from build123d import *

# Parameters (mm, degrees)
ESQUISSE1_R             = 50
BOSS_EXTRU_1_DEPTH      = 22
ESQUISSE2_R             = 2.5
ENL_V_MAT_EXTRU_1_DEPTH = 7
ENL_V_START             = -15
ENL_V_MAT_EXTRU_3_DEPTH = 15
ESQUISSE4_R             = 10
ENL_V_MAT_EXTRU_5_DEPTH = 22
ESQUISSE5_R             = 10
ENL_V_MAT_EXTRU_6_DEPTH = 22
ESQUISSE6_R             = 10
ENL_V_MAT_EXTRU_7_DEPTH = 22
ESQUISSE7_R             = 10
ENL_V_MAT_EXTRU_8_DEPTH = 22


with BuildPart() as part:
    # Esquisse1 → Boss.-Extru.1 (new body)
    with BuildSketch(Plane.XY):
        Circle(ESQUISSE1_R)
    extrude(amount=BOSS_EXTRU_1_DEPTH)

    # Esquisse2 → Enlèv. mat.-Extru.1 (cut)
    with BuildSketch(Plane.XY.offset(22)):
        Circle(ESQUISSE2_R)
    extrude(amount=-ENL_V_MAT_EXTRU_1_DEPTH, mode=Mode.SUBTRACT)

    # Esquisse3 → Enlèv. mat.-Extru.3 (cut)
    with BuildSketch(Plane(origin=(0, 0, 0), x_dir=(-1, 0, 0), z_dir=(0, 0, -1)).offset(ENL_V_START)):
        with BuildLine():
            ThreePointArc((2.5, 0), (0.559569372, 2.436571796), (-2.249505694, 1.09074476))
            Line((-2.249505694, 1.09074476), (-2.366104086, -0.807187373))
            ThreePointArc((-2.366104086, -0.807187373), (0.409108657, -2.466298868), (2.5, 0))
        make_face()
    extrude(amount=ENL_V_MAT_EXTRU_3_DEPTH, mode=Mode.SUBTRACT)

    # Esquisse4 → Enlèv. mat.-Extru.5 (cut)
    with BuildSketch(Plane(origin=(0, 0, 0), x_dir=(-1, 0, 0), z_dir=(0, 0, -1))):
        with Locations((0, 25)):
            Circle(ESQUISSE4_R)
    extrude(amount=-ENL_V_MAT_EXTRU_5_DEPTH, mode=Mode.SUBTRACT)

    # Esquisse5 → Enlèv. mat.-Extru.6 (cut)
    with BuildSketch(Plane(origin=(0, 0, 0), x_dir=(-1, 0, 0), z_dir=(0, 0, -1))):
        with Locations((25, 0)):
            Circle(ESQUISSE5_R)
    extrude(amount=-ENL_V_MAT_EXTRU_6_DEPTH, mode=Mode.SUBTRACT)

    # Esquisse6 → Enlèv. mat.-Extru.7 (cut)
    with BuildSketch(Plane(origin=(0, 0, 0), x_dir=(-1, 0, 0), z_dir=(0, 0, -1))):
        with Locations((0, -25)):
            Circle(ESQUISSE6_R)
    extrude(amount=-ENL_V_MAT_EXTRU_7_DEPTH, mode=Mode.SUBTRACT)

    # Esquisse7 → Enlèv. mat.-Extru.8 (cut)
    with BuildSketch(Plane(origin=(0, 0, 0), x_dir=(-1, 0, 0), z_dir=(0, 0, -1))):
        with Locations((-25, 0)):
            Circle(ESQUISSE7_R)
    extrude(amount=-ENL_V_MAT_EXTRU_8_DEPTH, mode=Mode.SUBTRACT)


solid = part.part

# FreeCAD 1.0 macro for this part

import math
import FreeCAD as App
import Part
import Sketcher

V = App.Vector

doc = App.newDocument("Part")
body = doc.addObject("PartDesign::Body", "Body")

# Sketch on XY plane
sketch1 = body.newObject("Sketcher::SketchObject", "Sketch")
sketch1.AttachmentSupport = (doc.getObject("XY_Plane"), [""])
sketch1.MapMode = "FlatFace"
sketch1.addGeometry(Part.Circle(V(0, 0, 0), V(0, 0, 1), 50), False)
sketch1.addConstraint(Sketcher.Constraint("Coincident", 0, 3, -1, 1))
sketch1.addConstraint(Sketcher.Constraint("Diameter", 0, 100.0))
pad1 = body.newObject("PartDesign::Pad", "Pad")
pad1.Profile = sketch1
pad1.Length = 22

# Sketch on XY plane
sketch2 = body.newObject("Sketcher::SketchObject", "Sketch001")
sketch2.AttachmentSupport = (doc.getObject("XY_Plane"), [""])
sketch2.MapMode = "FlatFace"
sketch2.AttachmentOffset = App.Placement(V(0, 0, 22), App.Rotation())
sketch2.addGeometry(Part.Circle(V(0, 0, 0), V(0, 0, 1), 2.5), False)
sketch2.addConstraint(Sketcher.Constraint("Coincident", 0, 3, -1, 1))
sketch2.addConstraint(Sketcher.Constraint("Diameter", 0, 5.0))
pocket1 = body.newObject("PartDesign::Pocket", "Pocket")
pocket1.Profile = sketch2
pocket1.Length = 7

# Sketch on XY plane
sketch3 = body.newObject("Sketcher::SketchObject", "Sketch002")
sketch3.AttachmentSupport = (doc.getObject("XY_Plane"), [""])
sketch3.MapMode = "FlatFace"
sketch3.AttachmentOffset = App.Placement(V(0, 0, 15), App.Rotation())
sketch3.addGeometry(Part.ArcOfCircle(Part.Circle(V(0, 0, 0), V(0, 0, 1), 2.5), math.radians(26), math.radians(180)), False)
sketch3.addGeometry(Part.LineSegment(V(2.2, 1.1, 0), V(2.4, -0.8, 0)), False)
sketch3.addGeometry(Part.ArcOfCircle(Part.Circle(V(0, 0, 0), V(0, 0, 1), 2.5), math.radians(180), math.radians(341)), False)
sketch3.addConstraint(Sketcher.Constraint("Coincident", 0, 1, 1, 1))
sketch3.addConstraint(Sketcher.Constraint("Coincident", 1, 2, 2, 2))
sketch3.addConstraint(Sketcher.Constraint("Tangent", 2, 1, 0, 2))
sketch3.addConstraint(Sketcher.Constraint("Coincident", 0, 3, -1, 1))
sketch3.addConstraint(Sketcher.Constraint("Equal", 0, 2))
sketch3.addConstraint(Sketcher.Constraint("PointOnObject", 2, 1, -1))
sketch3.addConstraint(Sketcher.Constraint("Radius", 0, 2.5))
sketch3.addConstraint(Sketcher.Constraint("DistanceX", 0, 1, 1, 2, 0.116598))
sketch3.addConstraint(Sketcher.Constraint("Distance", 1, 1.90151))
pocket2 = body.newObject("PartDesign::Pocket", "Pocket001")
pocket2.Profile = sketch3
pocket2.Length = 15

# Sketch on XY plane
sketch4 = body.newObject("Sketcher::SketchObject", "Sketch003")
sketch4.AttachmentSupport = (doc.getObject("XY_Plane"), [""])
sketch4.MapMode = "FlatFace"
sketch4.addGeometry(Part.Circle(V(0, 25, 0), V(0, 0, 1), 10), False)
sketch4.addConstraint(Sketcher.Constraint("PointOnObject", 0, 3, -2))
sketch4.addConstraint(Sketcher.Constraint("Diameter", 0, 20.0))
sketch4.addConstraint(Sketcher.Constraint("DistanceY", -1, 1, 0, 3, 25.0))
pocket3 = body.newObject("PartDesign::Pocket", "Pocket002")
pocket3.Profile = sketch4
pocket3.Length = 22
pocket3.Reversed = True

# Sketch on XY plane
sketch5 = body.newObject("Sketcher::SketchObject", "Sketch004")
sketch5.AttachmentSupport = (doc.getObject("XY_Plane"), [""])
sketch5.MapMode = "FlatFace"
sketch5.addGeometry(Part.Circle(V(-25, 0, 0), V(0, 0, 1), 10), False)
sketch5.addConstraint(Sketcher.Constraint("PointOnObject", 0, 3, -1))
sketch5.addConstraint(Sketcher.Constraint("Diameter", 0, 20.0))
sketch5.addConstraint(Sketcher.Constraint("DistanceX", 0, 3, -1, 1, 25.0))
pocket4 = body.newObject("PartDesign::Pocket", "Pocket003")
pocket4.Profile = sketch5
pocket4.Length = 22
pocket4.Reversed = True

# Sketch on XY plane
sketch6 = body.newObject("Sketcher::SketchObject", "Sketch005")
sketch6.AttachmentSupport = (doc.getObject("XY_Plane"), [""])
sketch6.MapMode = "FlatFace"
sketch6.addGeometry(Part.Circle(V(0, -25, 0), V(0, 0, 1), 10), False)
sketch6.addConstraint(Sketcher.Constraint("PointOnObject", 0, 3, -2))
sketch6.addConstraint(Sketcher.Constraint("Diameter", 0, 20.0))
sketch6.addConstraint(Sketcher.Constraint("DistanceY", 0, 3, -1, 1, 25.0))
pocket5 = body.newObject("PartDesign::Pocket", "Pocket004")
pocket5.Profile = sketch6
pocket5.Length = 22
pocket5.Reversed = True

# Sketch on XY plane
sketch7 = body.newObject("Sketcher::SketchObject", "Sketch006")
sketch7.AttachmentSupport = (doc.getObject("XY_Plane"), [""])
sketch7.MapMode = "FlatFace"
sketch7.addGeometry(Part.Circle(V(25, 0, 0), V(0, 0, 1), 10), False)
sketch7.addConstraint(Sketcher.Constraint("PointOnObject", 0, 3, -1))
sketch7.addConstraint(Sketcher.Constraint("Diameter", 0, 20.0))
sketch7.addConstraint(Sketcher.Constraint("DistanceX", -1, 1, 0, 3, 25.0))
pocket6 = body.newObject("PartDesign::Pocket", "Pocket005")
pocket6.Profile = sketch7
pocket6.Length = 22
pocket6.Reversed = True

doc.recompute()
